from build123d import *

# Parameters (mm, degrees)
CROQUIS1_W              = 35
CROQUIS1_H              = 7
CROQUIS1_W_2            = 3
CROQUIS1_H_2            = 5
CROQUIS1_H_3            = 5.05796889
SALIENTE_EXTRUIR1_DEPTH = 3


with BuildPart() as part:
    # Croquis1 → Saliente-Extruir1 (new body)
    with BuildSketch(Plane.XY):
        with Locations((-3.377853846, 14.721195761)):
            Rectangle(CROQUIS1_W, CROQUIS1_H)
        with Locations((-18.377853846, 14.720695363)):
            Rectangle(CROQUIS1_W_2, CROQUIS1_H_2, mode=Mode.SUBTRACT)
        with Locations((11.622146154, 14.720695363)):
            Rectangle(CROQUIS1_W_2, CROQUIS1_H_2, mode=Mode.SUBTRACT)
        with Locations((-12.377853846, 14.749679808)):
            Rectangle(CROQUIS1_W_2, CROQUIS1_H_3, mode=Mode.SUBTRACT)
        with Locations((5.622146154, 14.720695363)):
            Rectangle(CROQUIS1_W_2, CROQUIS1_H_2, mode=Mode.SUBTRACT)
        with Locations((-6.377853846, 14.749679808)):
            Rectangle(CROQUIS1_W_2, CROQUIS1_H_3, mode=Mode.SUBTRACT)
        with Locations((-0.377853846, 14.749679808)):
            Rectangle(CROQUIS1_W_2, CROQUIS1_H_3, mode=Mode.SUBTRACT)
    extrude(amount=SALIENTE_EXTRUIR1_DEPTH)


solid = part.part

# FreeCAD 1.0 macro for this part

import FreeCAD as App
import Part
import Sketcher

doc = App.newDocument("Part")
body = doc.addObject("PartDesign::Body", "Body")

# Sketch on XY plane
sketch1 = body.newObject("Sketcher::SketchObject", "Sketch")
sketch1.AttachmentSupport = (doc.getObject("XY_Plane"), [""])
sketch1.MapMode = "FlatFace"
sketch1.addGeometry(Part.LineSegment(App.Vector(-20.9, 18.2, 0), App.Vector(-20.9, 11.2, 0)), False)
sketch1.addGeometry(Part.LineSegment(App.Vector(-20.9, 11.2, 0), App.Vector(14.1, 11.2, 0)), False)
sketch1.addGeometry(Part.LineSegment(App.Vector(14.1, 11.2, 0), App.Vector(14.1, 18.2, 0)), False)
sketch1.addGeometry(Part.LineSegment(App.Vector(14.1, 18.2, 0), App.Vector(-20.9, 18.2, 0)), False)
sketch1.addGeometry(Part.LineSegment(App.Vector(-16.9, 12.2, 0), App.Vector(-19.9, 12.2, 0)), False)
sketch1.addGeometry(Part.LineSegment(App.Vector(-19.9, 12.2, 0), App.Vector(-19.9, 17.2, 0)), False)
sketch1.addGeometry(Part.LineSegment(App.Vector(-19.9, 17.2, 0), App.Vector(-16.9, 17.2, 0)), False)
sketch1.addGeometry(Part.LineSegment(App.Vector(-16.9, 17.2, 0), App.Vector(-16.9, 12.2, 0)), False)
sketch1.addGeometry(Part.LineSegment(App.Vector(7.1, 12.2, 0), App.Vector(4.1, 12.2, 0)), False)
sketch1.addGeometry(Part.LineSegment(App.Vector(4.1, 12.2, 0), App.Vector(4.1, 17.2, 0)), False)
sketch1.addGeometry(Part.LineSegment(App.Vector(4.1, 17.2, 0), App.Vector(7.1, 17.2, 0)), False)
sketch1.addGeometry(Part.LineSegment(App.Vector(7.1, 17.2, 0), App.Vector(7.1, 12.2, 0)), False)
sketch1.addGeometry(Part.LineSegment(App.Vector(13.1, 12.2, 0), App.Vector(10.1, 12.2, 0)), False)
sketch1.addGeometry(Part.LineSegment(App.Vector(10.1, 12.2, 0), App.Vector(10.1, 17.2, 0)), False)
sketch1.addGeometry(Part.LineSegment(App.Vector(10.1, 17.2, 0), App.Vector(13.1, 17.2, 0)), False)
sketch1.addGeometry(Part.LineSegment(App.Vector(13.1, 17.2, 0), App.Vector(13.1, 12.2, 0)), False)
sketch1.addGeometry(Part.LineSegment(App.Vector(-10.9, 12.2, 0), App.Vector(-13.9, 12.2, 0)), False)
sketch1.addGeometry(Part.LineSegment(App.Vector(-13.9, 12.2, 0), App.Vector(-13.9, 17.3, 0)), False)
sketch1.addGeometry(Part.LineSegment(App.Vector(-13.9, 17.3, 0), App.Vector(-10.9, 17.3, 0)), False)
sketch1.addGeometry(Part.LineSegment(App.Vector(-10.9, 17.3, 0), App.Vector(-10.9, 12.2, 0)), False)
sketch1.addGeometry(Part.LineSegment(App.Vector(-4.9, 12.2, 0), App.Vector(-7.9, 12.2, 0)), False)
sketch1.addGeometry(Part.LineSegment(App.Vector(-7.9, 12.2, 0), App.Vector(-7.9, 17.3, 0)), False)
sketch1.addGeometry(Part.LineSegment(App.Vector(-7.9, 17.3, 0), App.Vector(-4.9, 17.3, 0)), False)
sketch1.addGeometry(Part.LineSegment(App.Vector(-4.9, 17.3, 0), App.Vector(-4.9, 12.2, 0)), False)
sketch1.addGeometry(Part.LineSegment(App.Vector(1.1, 12.2, 0), App.Vector(-1.9, 12.2, 0)), False)
sketch1.addGeometry(Part.LineSegment(App.Vector(-1.9, 12.2, 0), App.Vector(-1.9, 17.3, 0)), False)
sketch1.addGeometry(Part.LineSegment(App.Vector(-1.9, 17.3, 0), App.Vector(1.1, 17.3, 0)), False)
sketch1.addGeometry(Part.LineSegment(App.Vector(1.1, 17.3, 0), App.Vector(1.1, 12.2, 0)), False)
sketch1.addConstraint(Sketcher.Constraint("Coincident", 0, 2, 1, 1))
sketch1.addConstraint(Sketcher.Constraint("Coincident", 1, 2, 2, 1))
sketch1.addConstraint(Sketcher.Constraint("Coincident", 2, 2, 3, 1))
sketch1.addConstraint(Sketcher.Constraint("Coincident", 3, 2, 0, 1))
sketch1.addConstraint(Sketcher.Constraint("Coincident", 4, 2, 5, 1))
sketch1.addConstraint(Sketcher.Constraint("Coincident", 5, 2, 6, 1))
sketch1.addConstraint(Sketcher.Constraint("Coincident", 6, 2, 7, 1))
sketch1.addConstraint(Sketcher.Constraint("Coincident", 7, 2, 4, 1))
sketch1.addConstraint(Sketcher.Constraint("Coincident", 8, 2, 9, 1))
sketch1.addConstraint(Sketcher.Constraint("Coincident", 9, 2, 10, 1))
sketch1.addConstraint(Sketcher.Constraint("Coincident", 10, 2, 11, 1))
sketch1.addConstraint(Sketcher.Constraint("Coincident", 11, 2, 8, 1))
sketch1.addConstraint(Sketcher.Constraint("Coincident", 12, 2, 13, 1))
sketch1.addConstraint(Sketcher.Constraint("Coincident", 13, 2, 14, 1))
sketch1.addConstraint(Sketcher.Constraint("Coincident", 14, 2, 15, 1))
sketch1.addConstraint(Sketcher.Constraint("Coincident", 15, 2, 12, 1))
sketch1.addConstraint(Sketcher.Constraint("Coincident", 16, 2, 17, 1))
sketch1.addConstraint(Sketcher.Constraint("Coincident", 17, 2, 18, 1))
sketch1.addConstraint(Sketcher.Constraint("Coincident", 18, 2, 19, 1))
sketch1.addConstraint(Sketcher.Constraint("Coincident", 19, 2, 16, 1))
sketch1.addConstraint(Sketcher.Constraint("Coincident", 20, 2, 21, 1))
sketch1.addConstraint(Sketcher.Constraint("Coincident", 21, 2, 22, 1))
sketch1.addConstraint(Sketcher.Constraint("Coincident", 22, 2, 23, 1))
sketch1.addConstraint(Sketcher.Constraint("Coincident", 23, 2, 20, 1))
sketch1.addConstraint(Sketcher.Constraint("Coincident", 24, 2, 25, 1))
sketch1.addConstraint(Sketcher.Constraint("Coincident", 25, 2, 26, 1))
sketch1.addConstraint(Sketcher.Constraint("Coincident", 26, 2, 27, 1))
sketch1.addConstraint(Sketcher.Constraint("Coincident", 27, 2, 24, 1))
sketch1.addConstraint(Sketcher.Constraint("Vertical", 0))
sketch1.addConstraint(Sketcher.Constraint("Horizontal", 1))
sketch1.addConstraint(Sketcher.Constraint("Vertical", 2))
sketch1.addConstraint(Sketcher.Constraint("Horizontal", 3))
sketch1.addConstraint(Sketcher.Constraint("Horizontal", 4))
sketch1.addConstraint(Sketcher.Constraint("Vertical", 5))
sketch1.addConstraint(Sketcher.Constraint("Horizontal", 6))
sketch1.addConstraint(Sketcher.Constraint("Vertical", 7))
sketch1.addConstraint(Sketcher.Constraint("Horizontal", 8))
sketch1.addConstraint(Sketcher.Constraint("Vertical", 9))
sketch1.addConstraint(Sketcher.Constraint("Horizontal", 10))
sketch1.addConstraint(Sketcher.Constraint("Vertical", 11))
sketch1.addConstraint(Sketcher.Constraint("Horizontal", 12))
sketch1.addConstraint(Sketcher.Constraint("Vertical", 13))
sketch1.addConstraint(Sketcher.Constraint("Horizontal", 14))
sketch1.addConstraint(Sketcher.Constraint("Vertical", 15))
sketch1.addConstraint(Sketcher.Constraint("Horizontal", 16))
sketch1.addConstraint(Sketcher.Constraint("Vertical", 17))
sketch1.addConstraint(Sketcher.Constraint("Horizontal", 18))
sketch1.addConstraint(Sketcher.Constraint("Vertical", 19))
sketch1.addConstraint(Sketcher.Constraint("Horizontal", 20))
sketch1.addConstraint(Sketcher.Constraint("Vertical", 21))
sketch1.addConstraint(Sketcher.Constraint("Horizontal", 22))
sketch1.addConstraint(Sketcher.Constraint("Vertical", 23))
sketch1.addConstraint(Sketcher.Constraint("Horizontal", 24))
sketch1.addConstraint(Sketcher.Constraint("Vertical", 25))
sketch1.addConstraint(Sketcher.Constraint("Horizontal", 26))
sketch1.addConstraint(Sketcher.Constraint("Vertical", 27))
sketch1.addConstraint(Sketcher.Constraint("Horizontal", 7, 2, 8, 2))
sketch1.addConstraint(Sketcher.Constraint("Horizontal", 6, 2, 9, 2))
sketch1.addConstraint(Sketcher.Constraint("Horizontal", 11, 2, 12, 2))
sketch1.addConstraint(Sketcher.Constraint("Horizontal", 10, 2, 13, 2))
sketch1.addConstraint(Sketcher.Constraint("Horizontal", 15, 2, 16, 2))
sketch1.addConstraint(Sketcher.Constraint("Horizontal", 19, 2, 20, 2))
sketch1.addConstraint(Sketcher.Constraint("Horizontal", 18, 2, 21, 2))
sketch1.addConstraint(Sketcher.Constraint("Horizontal", 23, 2, 24, 2))
sketch1.addConstraint(Sketcher.Constraint("Horizontal", 22, 2, 25, 2))
sketch1.addConstraint(Sketcher.Constraint("Equal", 6, 8))
sketch1.addConstraint(Sketcher.Constraint("Equal", 10, 12))
sketch1.addConstraint(Sketcher.Constraint("Equal", 14, 16))
sketch1.addConstraint(Sketcher.Constraint("Equal", 18, 20))
sketch1.addConstraint(Sketcher.Constraint("Equal", 22, 24))
sketch1.addConstraint(Sketcher.Constraint("DistanceX", 1, 1, 1, 2, 35.0))
sketch1.addConstraint(Sketcher.Constraint("DistanceX", 4, 2, 4, 1, 3.0))
sketch1.addConstraint(Sketcher.Constraint("DistanceY", 0, 2, 0, 1, 7.0))
sketch1.addConstraint(Sketcher.Constraint("DistanceY", 5, 1, 5, 2, 5.0))
sketch1.addConstraint(Sketcher.Constraint("DistanceX", 0, 2, 4, 2, 1.0))
sketch1.addConstraint(Sketcher.Constraint("DistanceX", 8, 2, 1, 2, 10.0))
sketch1.addConstraint(Sketcher.Constraint("DistanceX", 11, 2, 12, 2, 3.0))
sketch1.addConstraint(Sketcher.Constraint("DistanceX", 7, 2, 16, 2, 3.0))
sketch1.addConstraint(Sketcher.Constraint("DistanceX", 19, 2, 20, 2, 3.0))
sketch1.addConstraint(Sketcher.Constraint("DistanceX", 23, 2, 24, 2, 3.0))
sketch1.addConstraint(Sketcher.Constraint("DistanceY", 17, 1, 17, 2, 5.057969))
sketch1.addConstraint(Sketcher.Constraint("DistanceY", 0, 2, 4, 2, 0.9995))
sketch1.addConstraint(Sketcher.Constraint("DistanceX", 0, 2, -1, 1, 20.877854))
sketch1.addConstraint(Sketcher.Constraint("DistanceY", -1, 1, 0, 2, 11.221196))
pad1 = body.newObject("PartDesign::Pad", "Pad")
pad1.Profile = sketch1
pad1.Length = 3

doc.recompute()
